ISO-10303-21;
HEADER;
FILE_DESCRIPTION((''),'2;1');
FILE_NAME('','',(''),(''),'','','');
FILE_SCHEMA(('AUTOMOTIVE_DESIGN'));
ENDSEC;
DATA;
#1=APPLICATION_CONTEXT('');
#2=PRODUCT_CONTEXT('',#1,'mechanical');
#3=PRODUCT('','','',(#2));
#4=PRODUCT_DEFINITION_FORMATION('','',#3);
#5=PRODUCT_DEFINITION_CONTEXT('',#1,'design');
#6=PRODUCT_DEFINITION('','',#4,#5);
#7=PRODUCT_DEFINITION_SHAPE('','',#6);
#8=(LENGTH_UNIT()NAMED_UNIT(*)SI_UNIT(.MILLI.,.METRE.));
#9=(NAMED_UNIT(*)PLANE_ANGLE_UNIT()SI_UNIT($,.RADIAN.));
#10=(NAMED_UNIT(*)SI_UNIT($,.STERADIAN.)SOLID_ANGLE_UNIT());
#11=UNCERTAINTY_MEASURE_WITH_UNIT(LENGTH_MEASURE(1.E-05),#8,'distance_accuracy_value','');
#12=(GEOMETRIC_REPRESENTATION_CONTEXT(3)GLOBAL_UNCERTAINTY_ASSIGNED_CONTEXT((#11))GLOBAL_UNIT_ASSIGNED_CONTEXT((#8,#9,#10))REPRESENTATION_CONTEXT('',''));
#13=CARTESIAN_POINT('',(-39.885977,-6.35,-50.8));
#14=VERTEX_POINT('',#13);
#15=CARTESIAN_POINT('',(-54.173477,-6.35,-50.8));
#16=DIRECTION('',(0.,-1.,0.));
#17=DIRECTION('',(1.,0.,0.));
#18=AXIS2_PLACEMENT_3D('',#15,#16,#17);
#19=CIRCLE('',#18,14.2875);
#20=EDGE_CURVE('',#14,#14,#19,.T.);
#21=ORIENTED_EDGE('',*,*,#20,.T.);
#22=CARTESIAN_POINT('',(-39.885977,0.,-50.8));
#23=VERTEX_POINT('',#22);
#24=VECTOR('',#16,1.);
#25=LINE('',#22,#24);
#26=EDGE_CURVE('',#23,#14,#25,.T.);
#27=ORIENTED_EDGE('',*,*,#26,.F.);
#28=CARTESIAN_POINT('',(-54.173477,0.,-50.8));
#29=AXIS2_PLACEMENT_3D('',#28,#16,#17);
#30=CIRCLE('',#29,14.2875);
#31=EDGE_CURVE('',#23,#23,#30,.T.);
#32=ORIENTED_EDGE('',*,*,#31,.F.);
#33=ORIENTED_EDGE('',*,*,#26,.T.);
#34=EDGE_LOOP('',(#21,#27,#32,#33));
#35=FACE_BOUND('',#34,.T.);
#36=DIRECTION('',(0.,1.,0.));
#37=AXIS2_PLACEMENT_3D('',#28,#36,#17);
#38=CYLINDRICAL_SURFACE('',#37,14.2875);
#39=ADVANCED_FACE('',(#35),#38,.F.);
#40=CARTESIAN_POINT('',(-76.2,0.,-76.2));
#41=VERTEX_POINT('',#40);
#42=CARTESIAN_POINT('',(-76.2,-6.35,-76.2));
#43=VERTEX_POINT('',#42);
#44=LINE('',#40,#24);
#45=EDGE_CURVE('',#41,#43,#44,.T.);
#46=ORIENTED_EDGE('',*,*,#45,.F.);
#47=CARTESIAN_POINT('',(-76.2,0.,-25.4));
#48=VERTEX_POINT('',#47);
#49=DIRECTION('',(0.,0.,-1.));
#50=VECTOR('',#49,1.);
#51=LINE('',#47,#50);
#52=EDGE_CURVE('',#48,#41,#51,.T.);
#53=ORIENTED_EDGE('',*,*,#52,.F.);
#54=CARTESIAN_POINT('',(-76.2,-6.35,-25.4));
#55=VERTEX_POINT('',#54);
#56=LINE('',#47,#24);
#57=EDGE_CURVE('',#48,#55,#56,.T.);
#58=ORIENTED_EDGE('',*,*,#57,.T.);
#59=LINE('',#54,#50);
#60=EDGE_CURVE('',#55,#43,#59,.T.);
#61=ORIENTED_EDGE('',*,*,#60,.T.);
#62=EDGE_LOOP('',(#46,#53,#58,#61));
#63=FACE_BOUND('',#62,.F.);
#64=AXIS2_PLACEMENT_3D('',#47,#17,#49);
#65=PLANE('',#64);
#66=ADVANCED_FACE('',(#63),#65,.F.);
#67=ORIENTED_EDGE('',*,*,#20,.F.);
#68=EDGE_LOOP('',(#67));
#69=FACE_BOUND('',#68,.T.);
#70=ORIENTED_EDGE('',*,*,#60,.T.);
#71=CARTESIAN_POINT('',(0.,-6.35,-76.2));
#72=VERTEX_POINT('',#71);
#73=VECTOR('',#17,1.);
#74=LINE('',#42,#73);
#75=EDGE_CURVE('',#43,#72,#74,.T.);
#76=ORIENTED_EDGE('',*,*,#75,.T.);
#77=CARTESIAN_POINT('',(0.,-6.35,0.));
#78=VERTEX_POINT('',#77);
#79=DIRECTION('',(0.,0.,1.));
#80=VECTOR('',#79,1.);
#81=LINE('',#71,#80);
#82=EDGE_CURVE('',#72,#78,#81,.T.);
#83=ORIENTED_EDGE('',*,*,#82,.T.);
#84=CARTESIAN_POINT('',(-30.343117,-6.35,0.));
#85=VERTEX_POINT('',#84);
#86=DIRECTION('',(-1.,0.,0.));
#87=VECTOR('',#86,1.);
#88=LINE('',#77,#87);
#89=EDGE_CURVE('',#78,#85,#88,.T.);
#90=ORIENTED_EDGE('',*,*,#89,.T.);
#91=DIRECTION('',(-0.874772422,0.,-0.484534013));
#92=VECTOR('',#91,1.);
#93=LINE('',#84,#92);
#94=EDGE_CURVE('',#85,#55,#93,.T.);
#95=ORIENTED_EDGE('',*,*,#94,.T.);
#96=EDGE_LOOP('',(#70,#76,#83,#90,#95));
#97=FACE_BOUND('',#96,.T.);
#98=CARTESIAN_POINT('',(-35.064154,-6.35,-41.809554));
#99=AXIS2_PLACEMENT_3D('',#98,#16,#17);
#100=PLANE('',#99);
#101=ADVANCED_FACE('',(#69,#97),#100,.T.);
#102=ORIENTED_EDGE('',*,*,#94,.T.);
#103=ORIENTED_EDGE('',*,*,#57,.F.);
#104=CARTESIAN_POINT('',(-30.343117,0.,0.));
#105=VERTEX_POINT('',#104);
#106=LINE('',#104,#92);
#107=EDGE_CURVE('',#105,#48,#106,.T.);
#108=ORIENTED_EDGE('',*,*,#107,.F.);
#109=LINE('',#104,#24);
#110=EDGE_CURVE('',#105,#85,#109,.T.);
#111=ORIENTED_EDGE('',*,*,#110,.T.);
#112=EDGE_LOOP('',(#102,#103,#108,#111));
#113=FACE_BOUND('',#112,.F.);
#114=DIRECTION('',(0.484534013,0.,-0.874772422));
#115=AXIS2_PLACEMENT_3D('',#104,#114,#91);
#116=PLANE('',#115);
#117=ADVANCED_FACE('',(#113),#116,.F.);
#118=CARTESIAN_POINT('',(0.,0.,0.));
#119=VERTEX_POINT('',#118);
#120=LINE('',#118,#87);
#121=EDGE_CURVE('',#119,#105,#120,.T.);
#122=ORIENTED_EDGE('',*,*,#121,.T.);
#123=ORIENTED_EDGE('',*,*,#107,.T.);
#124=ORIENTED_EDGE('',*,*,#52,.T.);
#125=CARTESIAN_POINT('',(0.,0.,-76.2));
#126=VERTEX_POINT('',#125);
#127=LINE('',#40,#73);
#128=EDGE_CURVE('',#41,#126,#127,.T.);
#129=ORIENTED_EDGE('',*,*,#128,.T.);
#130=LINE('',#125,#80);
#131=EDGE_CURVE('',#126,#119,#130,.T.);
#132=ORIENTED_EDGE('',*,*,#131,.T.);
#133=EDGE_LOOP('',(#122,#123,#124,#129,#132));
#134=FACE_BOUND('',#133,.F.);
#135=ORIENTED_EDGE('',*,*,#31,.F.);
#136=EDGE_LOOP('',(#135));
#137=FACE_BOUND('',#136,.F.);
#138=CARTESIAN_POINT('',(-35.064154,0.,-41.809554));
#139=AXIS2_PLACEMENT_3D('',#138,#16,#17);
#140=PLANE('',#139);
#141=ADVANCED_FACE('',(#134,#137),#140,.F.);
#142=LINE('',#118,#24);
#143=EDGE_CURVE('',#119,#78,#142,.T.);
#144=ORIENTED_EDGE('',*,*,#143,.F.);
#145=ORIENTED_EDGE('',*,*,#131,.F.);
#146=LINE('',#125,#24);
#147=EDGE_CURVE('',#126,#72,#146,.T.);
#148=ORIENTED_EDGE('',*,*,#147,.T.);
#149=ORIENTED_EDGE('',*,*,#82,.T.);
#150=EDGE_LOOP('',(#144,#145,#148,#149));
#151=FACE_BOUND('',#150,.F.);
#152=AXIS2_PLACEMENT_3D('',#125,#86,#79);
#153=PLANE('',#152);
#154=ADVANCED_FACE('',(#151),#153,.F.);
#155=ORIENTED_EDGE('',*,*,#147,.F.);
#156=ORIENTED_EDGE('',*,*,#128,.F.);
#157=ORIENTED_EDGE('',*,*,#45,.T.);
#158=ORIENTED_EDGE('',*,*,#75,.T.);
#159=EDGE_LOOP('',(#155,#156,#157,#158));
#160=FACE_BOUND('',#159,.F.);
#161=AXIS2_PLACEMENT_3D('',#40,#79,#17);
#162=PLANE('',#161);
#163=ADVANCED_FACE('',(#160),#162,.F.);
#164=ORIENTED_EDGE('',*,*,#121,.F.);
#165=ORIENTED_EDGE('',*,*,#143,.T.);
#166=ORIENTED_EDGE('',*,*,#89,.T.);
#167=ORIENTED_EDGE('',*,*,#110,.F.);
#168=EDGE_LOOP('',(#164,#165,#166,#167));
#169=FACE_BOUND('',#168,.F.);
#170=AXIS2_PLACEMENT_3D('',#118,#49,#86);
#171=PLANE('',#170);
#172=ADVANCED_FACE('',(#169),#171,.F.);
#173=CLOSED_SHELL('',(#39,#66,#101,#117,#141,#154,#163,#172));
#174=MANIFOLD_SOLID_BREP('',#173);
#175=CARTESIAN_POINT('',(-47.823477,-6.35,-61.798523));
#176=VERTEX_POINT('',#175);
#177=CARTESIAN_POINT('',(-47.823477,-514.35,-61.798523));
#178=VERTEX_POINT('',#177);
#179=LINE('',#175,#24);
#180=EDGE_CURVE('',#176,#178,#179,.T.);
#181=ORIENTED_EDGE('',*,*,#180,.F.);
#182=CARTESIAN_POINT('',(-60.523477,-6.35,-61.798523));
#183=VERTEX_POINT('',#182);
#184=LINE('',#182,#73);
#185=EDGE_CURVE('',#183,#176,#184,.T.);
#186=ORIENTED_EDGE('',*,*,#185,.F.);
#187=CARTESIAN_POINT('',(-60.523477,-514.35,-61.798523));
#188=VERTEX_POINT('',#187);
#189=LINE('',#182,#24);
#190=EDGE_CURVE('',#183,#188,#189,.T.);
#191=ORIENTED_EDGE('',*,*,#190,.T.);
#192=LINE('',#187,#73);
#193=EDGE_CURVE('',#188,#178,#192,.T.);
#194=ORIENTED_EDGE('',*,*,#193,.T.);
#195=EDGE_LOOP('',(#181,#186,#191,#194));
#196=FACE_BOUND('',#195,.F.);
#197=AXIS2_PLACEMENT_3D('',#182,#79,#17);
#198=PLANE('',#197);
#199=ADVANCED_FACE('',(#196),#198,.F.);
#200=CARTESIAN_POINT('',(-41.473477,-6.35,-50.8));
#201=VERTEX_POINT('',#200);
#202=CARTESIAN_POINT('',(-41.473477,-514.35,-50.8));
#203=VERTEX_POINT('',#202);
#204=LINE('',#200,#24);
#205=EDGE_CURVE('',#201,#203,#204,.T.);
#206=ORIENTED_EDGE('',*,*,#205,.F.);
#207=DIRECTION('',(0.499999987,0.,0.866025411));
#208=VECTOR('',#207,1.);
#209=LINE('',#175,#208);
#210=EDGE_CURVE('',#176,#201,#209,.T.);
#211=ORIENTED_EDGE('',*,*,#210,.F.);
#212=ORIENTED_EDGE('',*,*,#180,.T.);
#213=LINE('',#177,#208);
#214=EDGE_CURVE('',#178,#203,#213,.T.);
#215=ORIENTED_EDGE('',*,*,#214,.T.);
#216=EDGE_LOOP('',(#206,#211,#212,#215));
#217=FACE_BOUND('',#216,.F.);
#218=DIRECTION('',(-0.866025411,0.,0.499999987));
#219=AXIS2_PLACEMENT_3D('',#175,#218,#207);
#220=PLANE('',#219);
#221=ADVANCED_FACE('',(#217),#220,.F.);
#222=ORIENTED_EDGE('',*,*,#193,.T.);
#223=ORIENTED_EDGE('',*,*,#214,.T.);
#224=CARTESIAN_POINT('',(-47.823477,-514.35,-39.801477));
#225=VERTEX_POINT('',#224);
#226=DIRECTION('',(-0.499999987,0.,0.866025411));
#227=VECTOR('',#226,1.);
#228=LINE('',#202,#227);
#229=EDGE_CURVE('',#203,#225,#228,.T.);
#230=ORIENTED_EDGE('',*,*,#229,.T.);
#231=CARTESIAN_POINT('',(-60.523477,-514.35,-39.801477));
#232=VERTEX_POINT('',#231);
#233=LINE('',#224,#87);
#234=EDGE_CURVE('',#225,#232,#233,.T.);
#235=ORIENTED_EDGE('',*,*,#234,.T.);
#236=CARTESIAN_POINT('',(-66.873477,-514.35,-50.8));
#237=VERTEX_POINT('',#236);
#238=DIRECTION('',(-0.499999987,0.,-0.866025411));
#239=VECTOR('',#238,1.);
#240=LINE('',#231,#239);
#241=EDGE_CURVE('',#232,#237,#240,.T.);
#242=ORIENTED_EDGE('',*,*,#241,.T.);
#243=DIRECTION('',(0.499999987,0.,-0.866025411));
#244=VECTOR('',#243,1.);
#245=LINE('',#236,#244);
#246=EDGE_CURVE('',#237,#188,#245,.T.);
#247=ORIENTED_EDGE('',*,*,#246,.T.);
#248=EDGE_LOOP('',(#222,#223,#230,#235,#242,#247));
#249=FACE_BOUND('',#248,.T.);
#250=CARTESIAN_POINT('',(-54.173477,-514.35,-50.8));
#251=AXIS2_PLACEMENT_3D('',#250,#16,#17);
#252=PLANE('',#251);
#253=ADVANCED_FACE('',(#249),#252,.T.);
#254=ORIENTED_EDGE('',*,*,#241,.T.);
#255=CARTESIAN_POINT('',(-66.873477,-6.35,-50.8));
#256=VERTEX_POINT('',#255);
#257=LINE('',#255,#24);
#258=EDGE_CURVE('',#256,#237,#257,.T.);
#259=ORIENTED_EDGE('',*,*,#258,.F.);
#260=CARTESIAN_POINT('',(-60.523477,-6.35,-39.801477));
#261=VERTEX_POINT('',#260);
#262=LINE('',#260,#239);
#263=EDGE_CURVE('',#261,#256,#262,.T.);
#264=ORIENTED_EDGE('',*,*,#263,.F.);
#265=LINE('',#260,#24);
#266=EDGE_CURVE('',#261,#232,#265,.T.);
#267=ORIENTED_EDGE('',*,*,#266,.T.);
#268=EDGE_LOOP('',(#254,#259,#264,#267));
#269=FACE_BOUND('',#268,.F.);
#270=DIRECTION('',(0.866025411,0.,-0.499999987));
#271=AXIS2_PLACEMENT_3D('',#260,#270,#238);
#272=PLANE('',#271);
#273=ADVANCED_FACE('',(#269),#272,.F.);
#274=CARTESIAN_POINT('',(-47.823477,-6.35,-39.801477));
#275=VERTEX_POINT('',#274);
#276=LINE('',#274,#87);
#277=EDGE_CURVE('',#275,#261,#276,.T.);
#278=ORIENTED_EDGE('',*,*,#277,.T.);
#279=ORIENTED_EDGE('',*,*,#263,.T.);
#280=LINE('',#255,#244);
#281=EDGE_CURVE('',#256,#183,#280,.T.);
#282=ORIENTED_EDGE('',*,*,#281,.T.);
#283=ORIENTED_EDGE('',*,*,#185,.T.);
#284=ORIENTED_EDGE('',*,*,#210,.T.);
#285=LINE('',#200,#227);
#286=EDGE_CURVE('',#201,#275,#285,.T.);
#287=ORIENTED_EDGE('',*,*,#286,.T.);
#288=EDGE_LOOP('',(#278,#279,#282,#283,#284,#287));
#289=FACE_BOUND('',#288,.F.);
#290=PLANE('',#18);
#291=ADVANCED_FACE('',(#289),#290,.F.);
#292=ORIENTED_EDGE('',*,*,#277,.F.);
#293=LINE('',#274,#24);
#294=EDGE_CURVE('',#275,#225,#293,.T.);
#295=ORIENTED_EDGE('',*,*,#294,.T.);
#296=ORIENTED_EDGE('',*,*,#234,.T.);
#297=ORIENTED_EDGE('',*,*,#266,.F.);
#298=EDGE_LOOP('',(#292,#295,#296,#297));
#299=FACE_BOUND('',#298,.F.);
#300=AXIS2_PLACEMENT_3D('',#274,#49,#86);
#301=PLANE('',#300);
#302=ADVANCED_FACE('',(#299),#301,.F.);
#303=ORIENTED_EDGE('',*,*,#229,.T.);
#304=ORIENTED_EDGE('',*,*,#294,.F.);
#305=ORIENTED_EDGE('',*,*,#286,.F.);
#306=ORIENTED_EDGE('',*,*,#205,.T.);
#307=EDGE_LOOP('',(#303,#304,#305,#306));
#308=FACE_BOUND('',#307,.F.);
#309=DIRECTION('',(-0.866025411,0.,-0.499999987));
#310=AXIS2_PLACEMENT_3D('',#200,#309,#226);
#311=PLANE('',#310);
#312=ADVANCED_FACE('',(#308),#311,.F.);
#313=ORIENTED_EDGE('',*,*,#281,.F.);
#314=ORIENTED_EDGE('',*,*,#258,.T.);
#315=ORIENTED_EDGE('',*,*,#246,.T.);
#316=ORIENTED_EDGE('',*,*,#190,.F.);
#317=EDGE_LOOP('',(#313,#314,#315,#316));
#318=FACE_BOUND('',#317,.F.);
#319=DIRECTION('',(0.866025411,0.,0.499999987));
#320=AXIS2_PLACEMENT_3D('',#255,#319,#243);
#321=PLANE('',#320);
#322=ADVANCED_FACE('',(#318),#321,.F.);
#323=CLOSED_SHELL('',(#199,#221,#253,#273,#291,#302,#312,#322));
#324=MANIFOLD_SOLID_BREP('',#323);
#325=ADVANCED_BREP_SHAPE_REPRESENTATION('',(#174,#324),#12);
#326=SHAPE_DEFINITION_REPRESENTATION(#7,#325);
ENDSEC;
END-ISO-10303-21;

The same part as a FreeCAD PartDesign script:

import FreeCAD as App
import Part
import Sketcher
from FreeCAD import Vector
Q = App.Units.Quantity


def add_polygon(sketch, points):
    """Adds a closed chain of lines whose ends are joined by coincident constraints."""
    first, n = sketch.GeometryCount, len(points)
    for a, b in zip(points, points[1:] + points[:1]):
        sketch.addGeometry(Part.LineSegment(App.Vector(*a, 0), App.Vector(*b, 0)), False)
    for i in range(n):
        sketch.addConstraint(Sketcher.Constraint("Coincident", first + i, 2, first + (i + 1) % n, 1))

doc = App.newDocument("Part")
body = doc.addObject("PartDesign::Body", "Body")

# Sketch on XZ plane
sketch1 = body.newObject("Sketcher::SketchObject", "Sketch")
sketch1.AttachmentSupport = (doc.getObject("XZ_Plane"), [""])
sketch1.MapMode = "FlatFace"
add_polygon(sketch1, [(-76, -76), (0, -76), (0, 0), (-30, 0), (-76, -25)])  # lines 0-4
sketch1.addGeometry(Part.Circle(Vector(-54, -51, 0), Vector(0, 0, 1), 14), False)  # 5
sketch1.addConstraint(Sketcher.Constraint("Horizontal", 0))
sketch1.addConstraint(Sketcher.Constraint("Vertical", 1))
sketch1.addConstraint(Sketcher.Constraint("Horizontal", 2))
sketch1.addConstraint(Sketcher.Constraint("Vertical", 4))
sketch1.addConstraint(Sketcher.Constraint("Coincident", 1, 2, -1, 1))
sketch1.addConstraint(Sketcher.Constraint("Equal", 0, 1))
sketch1.addConstraint(Sketcher.Constraint("DistanceX", 0, 1, 0, 2, Q("3 in")))
sketch1.addConstraint(Sketcher.Constraint("DistanceY", 4, 2, 4, 1, Q("2 in")))
sketch1.addConstraint(Sketcher.Constraint("Diameter", 5, Q("1.125 in")))
sketch1.addConstraint(Sketcher.Constraint("DistanceY", 5, 3, -1, 1, Q("2 in")))
sketch1.addConstraint(Sketcher.Constraint("Distance", 3, 52.421501))
sketch1.addConstraint(Sketcher.Constraint("DistanceX", 5, 3, 2, 2, 23.83036))
pad1 = body.newObject("PartDesign::Pad", "Pad")
pad1.Profile = sketch1
pad1.Length = Q("0.25 in")
body2 = doc.addObject("PartDesign::Body", "Body001")

# Sketch on XZ plane
sketch2 = body2.newObject("Sketcher::SketchObject", "Sketch001")
sketch2.AttachmentSupport = (doc.getObject("XZ_Plane001"), [""])
sketch2.MapMode = "FlatFace"
sketch2.AttachmentOffset = App.Placement(Vector(0, 0, 0.25 * 25.4), App.Rotation())
add_polygon(sketch2, [(-48, -40), (-61, -40), (-67, -51), (-61, -62), (-48, -62), (-41, -51)])  # lines 0-5
sketch2.addConstraint(Sketcher.Constraint("Horizontal", 0))
sketch2.addConstraint(Sketcher.Constraint("Horizontal", 3))
sketch2.addConstraint(Sketcher.Constraint("Parallel", 1, 4))
sketch2.addConstraint(Sketcher.Constraint("Parallel", 2, 5))
sketch2.addConstraint(Sketcher.Constraint("Horizontal", 1, 2, 4, 2))
sketch2.addConstraint(Sketcher.Constraint("Vertical", 0, 2, 2, 2))
sketch2.addConstraint(Sketcher.Constraint("Vertical", 3, 2, 5, 2))
sketch2.addConstraint(Sketcher.Constraint("DistanceX", 0, 2, 0, 1, Q("0.5 in")))
sketch2.addConstraint(Sketcher.Constraint("DistanceY", 1, 2, -1, 1, Q("2 in")))
sketch2.addConstraint(Sketcher.Constraint("Angle", 1, Q("-119.999999 deg")))
sketch2.addConstraint(Sketcher.Constraint("DistanceX", 1, 2, 4, 2, Q("1 in")))
sketch2.addConstraint(Sketcher.Constraint("DistanceX", 0, 2, -1, 1, 60.523477))
pad2 = body2.newObject("PartDesign::Pad", "Pad001")
pad2.Profile = sketch2
pad2.Length = Q("20 in")

doc.recompute()
